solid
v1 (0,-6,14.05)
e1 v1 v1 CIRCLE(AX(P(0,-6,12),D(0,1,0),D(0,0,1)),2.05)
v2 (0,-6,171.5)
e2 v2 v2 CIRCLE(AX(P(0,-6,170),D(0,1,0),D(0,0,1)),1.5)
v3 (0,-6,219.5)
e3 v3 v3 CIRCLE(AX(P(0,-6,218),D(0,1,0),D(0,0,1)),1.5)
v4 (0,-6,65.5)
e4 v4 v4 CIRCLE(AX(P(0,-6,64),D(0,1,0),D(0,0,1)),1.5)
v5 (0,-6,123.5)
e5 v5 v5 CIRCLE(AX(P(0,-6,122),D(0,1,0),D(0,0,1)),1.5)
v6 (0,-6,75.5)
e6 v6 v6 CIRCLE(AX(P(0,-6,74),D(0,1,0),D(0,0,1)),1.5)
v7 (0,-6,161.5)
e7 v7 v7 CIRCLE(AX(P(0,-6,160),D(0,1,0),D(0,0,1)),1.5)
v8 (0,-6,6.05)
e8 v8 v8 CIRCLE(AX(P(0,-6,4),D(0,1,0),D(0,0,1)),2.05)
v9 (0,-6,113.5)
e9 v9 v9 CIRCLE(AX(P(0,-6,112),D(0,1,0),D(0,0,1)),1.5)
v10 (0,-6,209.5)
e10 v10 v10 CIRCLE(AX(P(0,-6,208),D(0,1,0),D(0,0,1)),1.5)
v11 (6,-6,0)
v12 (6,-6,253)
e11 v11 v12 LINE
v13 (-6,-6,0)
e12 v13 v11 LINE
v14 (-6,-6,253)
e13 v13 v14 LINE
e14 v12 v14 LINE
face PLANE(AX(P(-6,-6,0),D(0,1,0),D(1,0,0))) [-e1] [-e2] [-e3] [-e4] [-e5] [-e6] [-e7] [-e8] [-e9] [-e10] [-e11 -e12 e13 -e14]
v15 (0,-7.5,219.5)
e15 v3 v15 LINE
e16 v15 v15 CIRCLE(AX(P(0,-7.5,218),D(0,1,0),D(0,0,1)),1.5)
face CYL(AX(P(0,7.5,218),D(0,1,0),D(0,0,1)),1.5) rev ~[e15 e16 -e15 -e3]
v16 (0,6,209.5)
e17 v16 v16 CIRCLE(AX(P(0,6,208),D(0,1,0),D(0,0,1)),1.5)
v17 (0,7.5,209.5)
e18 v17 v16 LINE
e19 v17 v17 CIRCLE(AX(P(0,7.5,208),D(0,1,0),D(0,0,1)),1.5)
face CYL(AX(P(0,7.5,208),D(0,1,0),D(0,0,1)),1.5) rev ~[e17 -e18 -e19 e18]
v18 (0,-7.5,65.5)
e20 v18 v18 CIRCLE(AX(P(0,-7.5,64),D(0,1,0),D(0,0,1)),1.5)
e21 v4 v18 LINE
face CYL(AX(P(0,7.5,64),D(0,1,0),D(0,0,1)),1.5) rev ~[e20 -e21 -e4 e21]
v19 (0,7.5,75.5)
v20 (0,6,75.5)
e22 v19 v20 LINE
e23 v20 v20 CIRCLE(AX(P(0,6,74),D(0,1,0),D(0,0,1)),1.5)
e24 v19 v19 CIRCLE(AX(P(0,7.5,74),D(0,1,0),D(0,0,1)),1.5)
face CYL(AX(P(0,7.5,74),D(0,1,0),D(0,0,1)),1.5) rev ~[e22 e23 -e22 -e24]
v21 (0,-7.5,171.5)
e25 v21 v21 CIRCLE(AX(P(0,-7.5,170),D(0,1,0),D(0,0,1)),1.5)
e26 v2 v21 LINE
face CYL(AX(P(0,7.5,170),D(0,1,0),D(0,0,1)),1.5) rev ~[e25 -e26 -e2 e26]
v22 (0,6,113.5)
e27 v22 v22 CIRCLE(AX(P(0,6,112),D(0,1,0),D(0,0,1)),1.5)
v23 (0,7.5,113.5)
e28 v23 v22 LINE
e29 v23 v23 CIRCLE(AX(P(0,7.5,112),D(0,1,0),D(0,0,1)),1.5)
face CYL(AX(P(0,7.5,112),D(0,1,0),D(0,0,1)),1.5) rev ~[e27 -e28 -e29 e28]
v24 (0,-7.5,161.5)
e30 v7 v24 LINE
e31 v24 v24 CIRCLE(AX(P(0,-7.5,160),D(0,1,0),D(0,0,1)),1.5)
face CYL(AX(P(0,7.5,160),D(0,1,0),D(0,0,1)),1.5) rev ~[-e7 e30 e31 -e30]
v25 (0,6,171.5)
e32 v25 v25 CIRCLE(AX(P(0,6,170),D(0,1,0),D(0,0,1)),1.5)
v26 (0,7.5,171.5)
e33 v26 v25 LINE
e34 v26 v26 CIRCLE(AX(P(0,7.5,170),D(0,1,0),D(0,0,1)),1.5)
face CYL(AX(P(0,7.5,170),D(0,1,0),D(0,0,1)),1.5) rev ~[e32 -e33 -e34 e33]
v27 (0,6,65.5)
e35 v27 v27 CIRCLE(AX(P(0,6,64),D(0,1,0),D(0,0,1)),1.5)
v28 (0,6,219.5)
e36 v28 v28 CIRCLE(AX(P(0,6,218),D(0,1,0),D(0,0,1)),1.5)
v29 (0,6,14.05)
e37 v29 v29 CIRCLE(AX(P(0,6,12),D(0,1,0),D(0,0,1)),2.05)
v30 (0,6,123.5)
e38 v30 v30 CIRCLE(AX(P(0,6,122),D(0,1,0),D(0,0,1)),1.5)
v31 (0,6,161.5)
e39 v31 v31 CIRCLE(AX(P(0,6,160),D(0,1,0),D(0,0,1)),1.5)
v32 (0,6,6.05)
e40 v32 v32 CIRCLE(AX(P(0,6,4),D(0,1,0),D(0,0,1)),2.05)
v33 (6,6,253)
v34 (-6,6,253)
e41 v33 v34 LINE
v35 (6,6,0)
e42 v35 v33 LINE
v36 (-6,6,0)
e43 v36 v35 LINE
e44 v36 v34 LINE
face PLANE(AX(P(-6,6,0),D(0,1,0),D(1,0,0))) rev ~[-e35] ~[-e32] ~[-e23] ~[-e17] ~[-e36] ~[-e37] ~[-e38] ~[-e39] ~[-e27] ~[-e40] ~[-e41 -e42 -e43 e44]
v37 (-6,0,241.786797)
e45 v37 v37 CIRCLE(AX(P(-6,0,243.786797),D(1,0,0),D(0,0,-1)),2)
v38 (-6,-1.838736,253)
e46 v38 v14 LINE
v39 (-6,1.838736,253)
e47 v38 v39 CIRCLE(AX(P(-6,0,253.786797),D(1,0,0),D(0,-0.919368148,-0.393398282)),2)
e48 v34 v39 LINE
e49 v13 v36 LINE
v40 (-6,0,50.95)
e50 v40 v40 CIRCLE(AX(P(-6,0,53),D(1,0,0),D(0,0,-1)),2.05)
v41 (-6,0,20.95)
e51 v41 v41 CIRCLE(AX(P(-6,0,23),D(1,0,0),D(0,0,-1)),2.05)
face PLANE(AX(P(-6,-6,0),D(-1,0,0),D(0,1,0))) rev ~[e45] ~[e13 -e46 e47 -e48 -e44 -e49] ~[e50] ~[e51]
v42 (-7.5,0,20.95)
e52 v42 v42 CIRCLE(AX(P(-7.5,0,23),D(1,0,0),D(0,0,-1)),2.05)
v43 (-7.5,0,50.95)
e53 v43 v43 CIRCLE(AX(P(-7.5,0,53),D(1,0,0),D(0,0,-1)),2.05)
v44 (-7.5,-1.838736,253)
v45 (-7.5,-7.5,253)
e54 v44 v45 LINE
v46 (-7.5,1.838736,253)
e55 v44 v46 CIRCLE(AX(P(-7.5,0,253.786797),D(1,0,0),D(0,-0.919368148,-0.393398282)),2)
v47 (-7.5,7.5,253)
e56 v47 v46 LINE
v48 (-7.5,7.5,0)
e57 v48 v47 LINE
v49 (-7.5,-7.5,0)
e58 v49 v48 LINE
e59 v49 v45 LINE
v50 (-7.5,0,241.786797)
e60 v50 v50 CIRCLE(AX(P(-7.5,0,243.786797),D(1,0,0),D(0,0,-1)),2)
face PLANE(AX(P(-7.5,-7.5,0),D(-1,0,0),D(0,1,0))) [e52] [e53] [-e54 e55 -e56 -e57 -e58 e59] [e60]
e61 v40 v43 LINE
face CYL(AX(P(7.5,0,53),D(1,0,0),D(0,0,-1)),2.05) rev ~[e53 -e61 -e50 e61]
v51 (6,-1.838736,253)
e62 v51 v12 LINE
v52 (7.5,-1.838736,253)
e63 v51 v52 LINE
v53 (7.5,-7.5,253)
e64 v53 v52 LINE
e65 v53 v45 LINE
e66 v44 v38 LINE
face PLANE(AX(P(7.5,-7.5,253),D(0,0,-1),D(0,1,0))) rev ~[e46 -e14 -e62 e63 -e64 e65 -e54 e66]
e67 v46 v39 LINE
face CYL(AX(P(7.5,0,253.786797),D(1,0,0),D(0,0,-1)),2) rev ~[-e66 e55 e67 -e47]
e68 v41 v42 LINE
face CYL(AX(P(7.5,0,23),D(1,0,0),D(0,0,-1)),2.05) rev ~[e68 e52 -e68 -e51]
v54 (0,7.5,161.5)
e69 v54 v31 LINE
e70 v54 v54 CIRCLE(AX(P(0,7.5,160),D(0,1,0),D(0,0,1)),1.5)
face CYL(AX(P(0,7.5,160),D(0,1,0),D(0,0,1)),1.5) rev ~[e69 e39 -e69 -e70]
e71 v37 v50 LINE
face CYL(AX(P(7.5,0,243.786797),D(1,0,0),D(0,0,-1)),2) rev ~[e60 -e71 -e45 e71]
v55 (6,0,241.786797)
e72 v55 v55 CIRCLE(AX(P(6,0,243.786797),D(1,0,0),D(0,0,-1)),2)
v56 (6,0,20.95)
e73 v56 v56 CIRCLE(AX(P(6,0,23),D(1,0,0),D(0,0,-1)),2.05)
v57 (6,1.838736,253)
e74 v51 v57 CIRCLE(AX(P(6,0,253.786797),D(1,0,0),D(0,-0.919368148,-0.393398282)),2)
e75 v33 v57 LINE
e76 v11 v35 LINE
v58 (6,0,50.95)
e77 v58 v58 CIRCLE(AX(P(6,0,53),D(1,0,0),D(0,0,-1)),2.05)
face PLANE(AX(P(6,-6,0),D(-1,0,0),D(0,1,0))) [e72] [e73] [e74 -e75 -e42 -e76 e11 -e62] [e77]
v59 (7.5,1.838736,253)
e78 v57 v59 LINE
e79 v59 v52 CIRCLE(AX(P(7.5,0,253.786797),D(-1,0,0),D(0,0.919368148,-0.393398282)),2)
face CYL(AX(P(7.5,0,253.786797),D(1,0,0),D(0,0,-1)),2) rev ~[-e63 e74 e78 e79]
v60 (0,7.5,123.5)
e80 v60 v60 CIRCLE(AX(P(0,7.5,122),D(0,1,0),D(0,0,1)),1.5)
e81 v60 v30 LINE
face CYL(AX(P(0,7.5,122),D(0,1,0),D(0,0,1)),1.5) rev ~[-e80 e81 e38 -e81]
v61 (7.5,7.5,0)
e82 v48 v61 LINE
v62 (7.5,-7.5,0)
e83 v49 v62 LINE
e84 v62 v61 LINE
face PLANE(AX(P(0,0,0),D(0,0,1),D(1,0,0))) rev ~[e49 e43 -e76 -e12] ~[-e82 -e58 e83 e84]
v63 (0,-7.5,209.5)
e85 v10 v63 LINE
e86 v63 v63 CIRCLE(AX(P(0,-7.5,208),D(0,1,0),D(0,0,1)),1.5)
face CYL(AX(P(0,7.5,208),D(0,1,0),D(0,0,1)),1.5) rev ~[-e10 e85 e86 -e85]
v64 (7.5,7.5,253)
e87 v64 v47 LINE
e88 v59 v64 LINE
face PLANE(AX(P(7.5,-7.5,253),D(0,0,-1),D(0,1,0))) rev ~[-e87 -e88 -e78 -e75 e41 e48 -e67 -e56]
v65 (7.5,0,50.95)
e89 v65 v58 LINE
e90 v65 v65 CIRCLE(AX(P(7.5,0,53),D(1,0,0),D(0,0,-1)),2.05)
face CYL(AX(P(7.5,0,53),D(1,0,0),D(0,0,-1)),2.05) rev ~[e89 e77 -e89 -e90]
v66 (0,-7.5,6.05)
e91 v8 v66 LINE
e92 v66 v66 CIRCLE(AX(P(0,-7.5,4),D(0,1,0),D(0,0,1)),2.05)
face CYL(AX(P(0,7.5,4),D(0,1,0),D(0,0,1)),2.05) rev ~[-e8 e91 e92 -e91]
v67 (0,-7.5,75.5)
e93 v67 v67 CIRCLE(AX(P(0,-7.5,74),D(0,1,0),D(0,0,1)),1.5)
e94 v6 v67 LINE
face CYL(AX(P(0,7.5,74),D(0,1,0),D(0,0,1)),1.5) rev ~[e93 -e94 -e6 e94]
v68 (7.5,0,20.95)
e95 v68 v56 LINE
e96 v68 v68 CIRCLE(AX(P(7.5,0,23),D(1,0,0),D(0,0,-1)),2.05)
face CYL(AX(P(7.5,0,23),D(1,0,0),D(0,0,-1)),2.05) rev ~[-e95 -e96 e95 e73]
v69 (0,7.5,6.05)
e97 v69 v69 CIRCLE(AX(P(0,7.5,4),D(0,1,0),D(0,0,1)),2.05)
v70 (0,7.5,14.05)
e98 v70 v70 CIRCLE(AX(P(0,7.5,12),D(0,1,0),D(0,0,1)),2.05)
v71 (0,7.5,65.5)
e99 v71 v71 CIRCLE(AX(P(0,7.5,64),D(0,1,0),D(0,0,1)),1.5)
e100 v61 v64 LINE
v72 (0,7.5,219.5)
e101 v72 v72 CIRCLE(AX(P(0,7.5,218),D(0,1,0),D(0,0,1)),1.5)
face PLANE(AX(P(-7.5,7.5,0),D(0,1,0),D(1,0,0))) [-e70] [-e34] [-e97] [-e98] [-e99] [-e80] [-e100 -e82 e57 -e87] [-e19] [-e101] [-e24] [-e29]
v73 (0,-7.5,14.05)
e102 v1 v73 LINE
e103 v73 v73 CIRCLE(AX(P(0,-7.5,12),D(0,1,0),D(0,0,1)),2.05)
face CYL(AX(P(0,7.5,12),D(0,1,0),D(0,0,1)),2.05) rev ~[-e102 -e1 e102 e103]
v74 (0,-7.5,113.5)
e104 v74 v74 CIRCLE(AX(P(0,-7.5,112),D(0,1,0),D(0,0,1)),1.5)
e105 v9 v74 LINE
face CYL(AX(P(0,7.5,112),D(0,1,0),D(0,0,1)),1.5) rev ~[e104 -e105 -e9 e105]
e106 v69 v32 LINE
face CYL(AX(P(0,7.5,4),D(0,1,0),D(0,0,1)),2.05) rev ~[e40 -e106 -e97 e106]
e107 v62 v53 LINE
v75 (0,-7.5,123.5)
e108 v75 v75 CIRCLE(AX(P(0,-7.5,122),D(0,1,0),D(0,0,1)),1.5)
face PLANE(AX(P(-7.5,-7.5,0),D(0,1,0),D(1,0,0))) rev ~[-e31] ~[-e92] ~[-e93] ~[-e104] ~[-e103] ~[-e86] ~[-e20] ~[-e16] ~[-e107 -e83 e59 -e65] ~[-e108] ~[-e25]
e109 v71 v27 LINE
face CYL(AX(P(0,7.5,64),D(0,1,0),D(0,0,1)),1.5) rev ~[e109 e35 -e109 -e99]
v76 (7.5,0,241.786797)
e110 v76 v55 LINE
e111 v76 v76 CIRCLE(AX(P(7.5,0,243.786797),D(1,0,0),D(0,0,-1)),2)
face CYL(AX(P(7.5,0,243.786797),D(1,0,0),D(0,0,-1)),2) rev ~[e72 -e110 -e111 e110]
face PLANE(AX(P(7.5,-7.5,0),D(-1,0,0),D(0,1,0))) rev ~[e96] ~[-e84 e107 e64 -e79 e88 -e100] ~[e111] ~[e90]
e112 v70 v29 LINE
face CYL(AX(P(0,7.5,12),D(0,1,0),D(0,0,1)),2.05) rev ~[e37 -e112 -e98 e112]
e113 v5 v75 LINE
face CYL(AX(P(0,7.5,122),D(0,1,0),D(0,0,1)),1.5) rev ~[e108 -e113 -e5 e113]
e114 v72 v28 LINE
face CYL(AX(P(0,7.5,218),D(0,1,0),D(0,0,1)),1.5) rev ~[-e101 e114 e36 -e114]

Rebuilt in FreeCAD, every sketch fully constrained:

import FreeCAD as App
import Part
import Sketcher
from FreeCAD import Vector

doc = App.newDocument("Part")
body = doc.addObject("PartDesign::Body", "Body")

# Sketch on XY plane
sketch1 = body.newObject("Sketcher::SketchObject", "Sketch")
sketch1.AttachmentSupport = (doc.getObject("XY_Plane"), [""])
sketch1.MapMode = "FlatFace"
sketch1.addGeometry([
    Part.LineSegment(Vector(-8, 8, 0), Vector(-8, -8, 0)),  # 0
    Part.LineSegment(Vector(-8, -8, 0), Vector(8, -8, 0)),  # 1
    Part.LineSegment(Vector(8, -8, 0), Vector(8, 8, 0)),  # 2
    Part.LineSegment(Vector(8, 8, 0), Vector(-8, 8, 0)),  # 3
    Part.LineSegment(Vector(6, -6, 0), Vector(-6, -6, 0)),  # 4
    Part.LineSegment(Vector(-6, -6, 0), Vector(-6, 6, 0)),  # 5
    Part.LineSegment(Vector(-6, 6, 0), Vector(6, 6, 0)),  # 6
    Part.LineSegment(Vector(6, 6, 0), Vector(6, -6, 0)),  # 7
], False)
sketch1.addConstraint([
    Sketcher.Constraint("Coincident", 0, 2, 1, 1),
    Sketcher.Constraint("Coincident", 1, 2, 2, 1),
    Sketcher.Constraint("Coincident", 2, 2, 3, 1),
    Sketcher.Constraint("Coincident", 3, 2, 0, 1),
    Sketcher.Constraint("Coincident", 4, 2, 5, 1),
    Sketcher.Constraint("Coincident", 5, 2, 6, 1),
    Sketcher.Constraint("Coincident", 6, 2, 7, 1),
    Sketcher.Constraint("Coincident", 7, 2, 4, 1),
    Sketcher.Constraint("Vertical", 0),
    Sketcher.Constraint("Horizontal", 1),
    Sketcher.Constraint("Vertical", 2),
    Sketcher.Constraint("Horizontal", 3),
    Sketcher.Constraint("Horizontal", 4),
    Sketcher.Constraint("Vertical", 5),
    Sketcher.Constraint("Horizontal", 6),
    Sketcher.Constraint("Vertical", 7),
    Sketcher.Constraint("Symmetric", 0, 2, 2, 2, -1, 1),
    Sketcher.Constraint("Symmetric", 4, 2, 6, 2, -1, 1),
    Sketcher.Constraint("Equal", 3, 0),
    Sketcher.Constraint("Equal", 6, 5),
    Sketcher.Constraint("DistanceX", 1, 1, 1, 2, 15.0),
    Sketcher.Constraint("DistanceX", 4, 2, 4, 1, 12.0),
])
pad1 = body.newObject("PartDesign::Pad", "Pad")
pad1.Profile = sketch1
pad1.Length = 375

# Sketch on XZ plane
sketch2 = body.newObject("Sketcher::SketchObject", "Sketch001")
sketch2.AttachmentSupport = (doc.getObject("XZ_Plane"), [""])
sketch2.MapMode = "FlatFace"
sketch2.AttachmentOffset = App.Placement(Vector(0, 0, -7.5), App.Rotation())
sketch2.addGeometry([
    Part.Circle(Vector(0, 4, 0), Vector(0, 0, 1), 2),
    Part.Circle(Vector(0, 12, 0), Vector(0, 0, 1), 2),
], False)
sketch2.addConstraint([
    Sketcher.Constraint("Equal", 0, 1),
    Sketcher.Constraint("PointOnObject", 0, 3, -2),
    Sketcher.Constraint("PointOnObject", 1, 3, -2),
    Sketcher.Constraint("Diameter", 0, 4.1),
    Sketcher.Constraint("DistanceY", -1, 1, 0, 3, 4.0),
    Sketcher.Constraint("DistanceY", -1, 1, 1, 3, 12.0),
])
pocket1 = body.newObject("PartDesign::Pocket", "Pocket")
pocket1.Profile = sketch2
pocket1.Length = 21
pocket1.Reversed = True

# Sketch on YZ plane
sketch3 = body.newObject("Sketcher::SketchObject", "Sketch002")
sketch3.AttachmentSupport = (doc.getObject("YZ_Plane"), [""])
sketch3.MapMode = "FlatFace"
sketch3.AttachmentOffset = App.Placement(Vector(0, 0, 7.5), App.Rotation())
sketch3.addGeometry([
    Part.Circle(Vector(0, 23, 0), Vector(0, 0, 1), 2),
    Part.Circle(Vector(0, 53, 0), Vector(0, 0, 1), 2),
], False)
sketch3.addConstraint([
    Sketcher.Constraint("Equal", 0, 1),
    Sketcher.Constraint("PointOnObject", 0, 3, -2),
    Sketcher.Constraint("PointOnObject", 1, 3, -2),
    Sketcher.Constraint("Diameter", 0, 4.1),
    Sketcher.Constraint("DistanceY", -1, 1, 0, 3, 23.0),
    Sketcher.Constraint("DistanceY", -1, 1, 1, 3, 53.0),
])
pocket2 = body.newObject("PartDesign::Pocket", "Pocket001")
pocket2.Profile = sketch3
pocket2.Length = 25

# Sketch on XZ plane
sketch4 = body.newObject("Sketcher::SketchObject", "Sketch003")
sketch4.AttachmentSupport = (doc.getObject("XZ_Plane"), [""])
sketch4.MapMode = "FlatFace"
sketch4.AttachmentOffset = App.Placement(Vector(0, 0, -7.5), App.Rotation())
sketch4.addGeometry([
    Part.Circle(Vector(0, 335, 0), Vector(0, 0, 1), 2),
    Part.Circle(Vector(0, 350, 0), Vector(0, 0, 1), 2),
], False)
sketch4.addConstraint([
    Sketcher.Constraint("Equal", 0, 1),
    Sketcher.Constraint("PointOnObject", 0, 3, -2),
    Sketcher.Constraint("PointOnObject", 1, 3, -2),
    Sketcher.Constraint("Diameter", 0, 4.0),
    Sketcher.Constraint("DistanceY", -1, 1, 0, 3, 335.0),
    Sketcher.Constraint("DistanceY", -1, 1, 1, 3, 350.0),
])
pocket3 = body.newObject("PartDesign::Pocket", "Pocket002")
pocket3.Profile = sketch4
pocket3.Length = 75
pocket3.Reversed = True

# Sketch on YZ plane
sketch5 = body.newObject("Sketcher::SketchObject", "Sketch004")
sketch5.AttachmentSupport = (doc.getObject("YZ_Plane"), [""])
sketch5.MapMode = "FlatFace"
sketch5.AttachmentOffset = App.Placement(Vector(0, 0, 7.5), App.Rotation())
sketch5.addGeometry([
    Part.Circle(Vector(0, 253.8, 0), Vector(0, 0, 1), 2),
    Part.Circle(Vector(0, 243.8, 0), Vector(0, 0, 1), 2),
], False)
sketch5.addConstraint([
    Sketcher.Constraint("Equal", 0, 1),
    Sketcher.Constraint("PointOnObject", 0, 3, -2),
    Sketcher.Constraint("PointOnObject", 1, 3, -2),
    Sketcher.Constraint("Diameter", 0, 4.0),
    Sketcher.Constraint("DistanceY", 1, 3, 0, 3, 10.0),
    Sketcher.Constraint("DistanceY", -1, 1, 0, 3, 253.786797),
])
pocket4 = body.newObject("PartDesign::Pocket", "Pocket003")
pocket4.Profile = sketch5
pocket4.Type = "ThroughAll"

# Sketch on YZ plane
sketch6 = body.newObject("Sketcher::SketchObject", "Sketch005")
sketch6.AttachmentSupport = (doc.getObject("YZ_Plane"), [""])
sketch6.MapMode = "FlatFace"
sketch6.AttachmentOffset = App.Placement(Vector(0, 0, 7.5), App.Rotation())
sketch6.addGeometry([
    Part.LineSegment(Vector(8, 375, 0), Vector(-8, 375, 0)),
    Part.LineSegment(Vector(-8, 375, 0), Vector(-8, 253, 0)),
    Part.LineSegment(Vector(-8, 253, 0), Vector(8, 253, 0)),
    Part.LineSegment(Vector(8, 253, 0), Vector(8, 375, 0)),
], False)
sketch6.addConstraint([
    Sketcher.Constraint("Coincident", 0, 2, 1, 1),
    Sketcher.Constraint("Coincident", 1, 2, 2, 1),
    Sketcher.Constraint("Coincident", 2, 2, 3, 1),
    Sketcher.Constraint("Coincident", 3, 2, 0, 1),
    Sketcher.Constraint("Horizontal", 0),
    Sketcher.Constraint("Vertical", 1),
    Sketcher.Constraint("Horizontal", 2),
    Sketcher.Constraint("Vertical", 3),
    Sketcher.Constraint("DistanceX", 0, 2, 0, 1, 15.0),
    Sketcher.Constraint("DistanceY", 1, 2, 1, 1, 122.0),
    Sketcher.Constraint("DistanceY", -1, 1, 0, 2, 375.0),
    Sketcher.Constraint("DistanceX", 0, 2, -1, 1, 7.5),
])
pocket5 = body.newObject("PartDesign::Pocket", "Pocket004")
pocket5.Profile = sketch6
pocket5.Type = "ThroughAll"

# Sketch on XZ plane
sketch7 = body.newObject("Sketcher::SketchObject", "Sketch006")
sketch7.AttachmentSupport = (doc.getObject("XZ_Plane"), [""])
sketch7.MapMode = "FlatFace"
sketch7.AttachmentOffset = App.Placement(Vector(0, 0, -7.5), App.Rotation())
sketch7.addGeometry([
    Part.Circle(Vector(0, 218, 0), Vector(0, 0, 1), 1.5),  # 0
    Part.Circle(Vector(0, 208, 0), Vector(0, 0, 1), 1.5),  # 1
    Part.Circle(Vector(0, 170, 0), Vector(0, 0, 1), 1.5),  # 2
    Part.Circle(Vector(0, 160, 0), Vector(0, 0, 1), 1.5),  # 3
    Part.Circle(Vector(0, 122, 0), Vector(0, 0, 1), 1.5),  # 4
    Part.Circle(Vector(0, 112, 0), Vector(0, 0, 1), 1.5),  # 5
    Part.Circle(Vector(0, 74, 0), Vector(0, 0, 1), 1.5),  # 6
    Part.Circle(Vector(0, 64, 0), Vector(0, 0, 1), 1.5),  # 7
], False)
sketch7.addConstraint([
    Sketcher.Constraint("Equal", 0, 1),
    Sketcher.Constraint("Equal", 1, 2),
    Sketcher.Constraint("Equal", 2, 3),
    Sketcher.Constraint("Equal", 3, 4),
    Sketcher.Constraint("Equal", 4, 5),
    Sketcher.Constraint("Equal", 5, 6),
    Sketcher.Constraint("Equal", 6, 7),
    Sketcher.Constraint("PointOnObject", 0, 3, -2),
    Sketcher.Constraint("PointOnObject", 1, 3, -2),
    Sketcher.Constraint("PointOnObject", 2, 3, -2),
    Sketcher.Constraint("PointOnObject", 3, 3, -2),
    Sketcher.Constraint("PointOnObject", 4, 3, -2),
    Sketcher.Constraint("PointOnObject", 5, 3, -2),
    Sketcher.Constraint("PointOnObject", 6, 3, -2),
    Sketcher.Constraint("PointOnObject", 7, 3, -2),
    Sketcher.Constraint("Diameter", 0, 3.0),
    Sketcher.Constraint("DistanceY", -1, 1, 0, 3, 218.0),
    Sketcher.Constraint("DistanceY", -1, 1, 1, 3, 208.0),
    Sketcher.Constraint("DistanceY", -1, 1, 2, 3, 170.0),
    Sketcher.Constraint("DistanceY", -1, 1, 3, 3, 160.0),
    Sketcher.Constraint("DistanceY", -1, 1, 4, 3, 122.0),
    Sketcher.Constraint("DistanceY", -1, 1, 5, 3, 112.0),
    Sketcher.Constraint("DistanceY", -1, 1, 6, 3, 74.0),
    Sketcher.Constraint("DistanceY", -1, 1, 7, 3, 64.0),
])
pocket6 = body.newObject("PartDesign::Pocket", "Pocket005")
pocket6.Profile = sketch7
pocket6.Type = "ThroughAll"
pocket6.Reversed = True

doc.recompute()
